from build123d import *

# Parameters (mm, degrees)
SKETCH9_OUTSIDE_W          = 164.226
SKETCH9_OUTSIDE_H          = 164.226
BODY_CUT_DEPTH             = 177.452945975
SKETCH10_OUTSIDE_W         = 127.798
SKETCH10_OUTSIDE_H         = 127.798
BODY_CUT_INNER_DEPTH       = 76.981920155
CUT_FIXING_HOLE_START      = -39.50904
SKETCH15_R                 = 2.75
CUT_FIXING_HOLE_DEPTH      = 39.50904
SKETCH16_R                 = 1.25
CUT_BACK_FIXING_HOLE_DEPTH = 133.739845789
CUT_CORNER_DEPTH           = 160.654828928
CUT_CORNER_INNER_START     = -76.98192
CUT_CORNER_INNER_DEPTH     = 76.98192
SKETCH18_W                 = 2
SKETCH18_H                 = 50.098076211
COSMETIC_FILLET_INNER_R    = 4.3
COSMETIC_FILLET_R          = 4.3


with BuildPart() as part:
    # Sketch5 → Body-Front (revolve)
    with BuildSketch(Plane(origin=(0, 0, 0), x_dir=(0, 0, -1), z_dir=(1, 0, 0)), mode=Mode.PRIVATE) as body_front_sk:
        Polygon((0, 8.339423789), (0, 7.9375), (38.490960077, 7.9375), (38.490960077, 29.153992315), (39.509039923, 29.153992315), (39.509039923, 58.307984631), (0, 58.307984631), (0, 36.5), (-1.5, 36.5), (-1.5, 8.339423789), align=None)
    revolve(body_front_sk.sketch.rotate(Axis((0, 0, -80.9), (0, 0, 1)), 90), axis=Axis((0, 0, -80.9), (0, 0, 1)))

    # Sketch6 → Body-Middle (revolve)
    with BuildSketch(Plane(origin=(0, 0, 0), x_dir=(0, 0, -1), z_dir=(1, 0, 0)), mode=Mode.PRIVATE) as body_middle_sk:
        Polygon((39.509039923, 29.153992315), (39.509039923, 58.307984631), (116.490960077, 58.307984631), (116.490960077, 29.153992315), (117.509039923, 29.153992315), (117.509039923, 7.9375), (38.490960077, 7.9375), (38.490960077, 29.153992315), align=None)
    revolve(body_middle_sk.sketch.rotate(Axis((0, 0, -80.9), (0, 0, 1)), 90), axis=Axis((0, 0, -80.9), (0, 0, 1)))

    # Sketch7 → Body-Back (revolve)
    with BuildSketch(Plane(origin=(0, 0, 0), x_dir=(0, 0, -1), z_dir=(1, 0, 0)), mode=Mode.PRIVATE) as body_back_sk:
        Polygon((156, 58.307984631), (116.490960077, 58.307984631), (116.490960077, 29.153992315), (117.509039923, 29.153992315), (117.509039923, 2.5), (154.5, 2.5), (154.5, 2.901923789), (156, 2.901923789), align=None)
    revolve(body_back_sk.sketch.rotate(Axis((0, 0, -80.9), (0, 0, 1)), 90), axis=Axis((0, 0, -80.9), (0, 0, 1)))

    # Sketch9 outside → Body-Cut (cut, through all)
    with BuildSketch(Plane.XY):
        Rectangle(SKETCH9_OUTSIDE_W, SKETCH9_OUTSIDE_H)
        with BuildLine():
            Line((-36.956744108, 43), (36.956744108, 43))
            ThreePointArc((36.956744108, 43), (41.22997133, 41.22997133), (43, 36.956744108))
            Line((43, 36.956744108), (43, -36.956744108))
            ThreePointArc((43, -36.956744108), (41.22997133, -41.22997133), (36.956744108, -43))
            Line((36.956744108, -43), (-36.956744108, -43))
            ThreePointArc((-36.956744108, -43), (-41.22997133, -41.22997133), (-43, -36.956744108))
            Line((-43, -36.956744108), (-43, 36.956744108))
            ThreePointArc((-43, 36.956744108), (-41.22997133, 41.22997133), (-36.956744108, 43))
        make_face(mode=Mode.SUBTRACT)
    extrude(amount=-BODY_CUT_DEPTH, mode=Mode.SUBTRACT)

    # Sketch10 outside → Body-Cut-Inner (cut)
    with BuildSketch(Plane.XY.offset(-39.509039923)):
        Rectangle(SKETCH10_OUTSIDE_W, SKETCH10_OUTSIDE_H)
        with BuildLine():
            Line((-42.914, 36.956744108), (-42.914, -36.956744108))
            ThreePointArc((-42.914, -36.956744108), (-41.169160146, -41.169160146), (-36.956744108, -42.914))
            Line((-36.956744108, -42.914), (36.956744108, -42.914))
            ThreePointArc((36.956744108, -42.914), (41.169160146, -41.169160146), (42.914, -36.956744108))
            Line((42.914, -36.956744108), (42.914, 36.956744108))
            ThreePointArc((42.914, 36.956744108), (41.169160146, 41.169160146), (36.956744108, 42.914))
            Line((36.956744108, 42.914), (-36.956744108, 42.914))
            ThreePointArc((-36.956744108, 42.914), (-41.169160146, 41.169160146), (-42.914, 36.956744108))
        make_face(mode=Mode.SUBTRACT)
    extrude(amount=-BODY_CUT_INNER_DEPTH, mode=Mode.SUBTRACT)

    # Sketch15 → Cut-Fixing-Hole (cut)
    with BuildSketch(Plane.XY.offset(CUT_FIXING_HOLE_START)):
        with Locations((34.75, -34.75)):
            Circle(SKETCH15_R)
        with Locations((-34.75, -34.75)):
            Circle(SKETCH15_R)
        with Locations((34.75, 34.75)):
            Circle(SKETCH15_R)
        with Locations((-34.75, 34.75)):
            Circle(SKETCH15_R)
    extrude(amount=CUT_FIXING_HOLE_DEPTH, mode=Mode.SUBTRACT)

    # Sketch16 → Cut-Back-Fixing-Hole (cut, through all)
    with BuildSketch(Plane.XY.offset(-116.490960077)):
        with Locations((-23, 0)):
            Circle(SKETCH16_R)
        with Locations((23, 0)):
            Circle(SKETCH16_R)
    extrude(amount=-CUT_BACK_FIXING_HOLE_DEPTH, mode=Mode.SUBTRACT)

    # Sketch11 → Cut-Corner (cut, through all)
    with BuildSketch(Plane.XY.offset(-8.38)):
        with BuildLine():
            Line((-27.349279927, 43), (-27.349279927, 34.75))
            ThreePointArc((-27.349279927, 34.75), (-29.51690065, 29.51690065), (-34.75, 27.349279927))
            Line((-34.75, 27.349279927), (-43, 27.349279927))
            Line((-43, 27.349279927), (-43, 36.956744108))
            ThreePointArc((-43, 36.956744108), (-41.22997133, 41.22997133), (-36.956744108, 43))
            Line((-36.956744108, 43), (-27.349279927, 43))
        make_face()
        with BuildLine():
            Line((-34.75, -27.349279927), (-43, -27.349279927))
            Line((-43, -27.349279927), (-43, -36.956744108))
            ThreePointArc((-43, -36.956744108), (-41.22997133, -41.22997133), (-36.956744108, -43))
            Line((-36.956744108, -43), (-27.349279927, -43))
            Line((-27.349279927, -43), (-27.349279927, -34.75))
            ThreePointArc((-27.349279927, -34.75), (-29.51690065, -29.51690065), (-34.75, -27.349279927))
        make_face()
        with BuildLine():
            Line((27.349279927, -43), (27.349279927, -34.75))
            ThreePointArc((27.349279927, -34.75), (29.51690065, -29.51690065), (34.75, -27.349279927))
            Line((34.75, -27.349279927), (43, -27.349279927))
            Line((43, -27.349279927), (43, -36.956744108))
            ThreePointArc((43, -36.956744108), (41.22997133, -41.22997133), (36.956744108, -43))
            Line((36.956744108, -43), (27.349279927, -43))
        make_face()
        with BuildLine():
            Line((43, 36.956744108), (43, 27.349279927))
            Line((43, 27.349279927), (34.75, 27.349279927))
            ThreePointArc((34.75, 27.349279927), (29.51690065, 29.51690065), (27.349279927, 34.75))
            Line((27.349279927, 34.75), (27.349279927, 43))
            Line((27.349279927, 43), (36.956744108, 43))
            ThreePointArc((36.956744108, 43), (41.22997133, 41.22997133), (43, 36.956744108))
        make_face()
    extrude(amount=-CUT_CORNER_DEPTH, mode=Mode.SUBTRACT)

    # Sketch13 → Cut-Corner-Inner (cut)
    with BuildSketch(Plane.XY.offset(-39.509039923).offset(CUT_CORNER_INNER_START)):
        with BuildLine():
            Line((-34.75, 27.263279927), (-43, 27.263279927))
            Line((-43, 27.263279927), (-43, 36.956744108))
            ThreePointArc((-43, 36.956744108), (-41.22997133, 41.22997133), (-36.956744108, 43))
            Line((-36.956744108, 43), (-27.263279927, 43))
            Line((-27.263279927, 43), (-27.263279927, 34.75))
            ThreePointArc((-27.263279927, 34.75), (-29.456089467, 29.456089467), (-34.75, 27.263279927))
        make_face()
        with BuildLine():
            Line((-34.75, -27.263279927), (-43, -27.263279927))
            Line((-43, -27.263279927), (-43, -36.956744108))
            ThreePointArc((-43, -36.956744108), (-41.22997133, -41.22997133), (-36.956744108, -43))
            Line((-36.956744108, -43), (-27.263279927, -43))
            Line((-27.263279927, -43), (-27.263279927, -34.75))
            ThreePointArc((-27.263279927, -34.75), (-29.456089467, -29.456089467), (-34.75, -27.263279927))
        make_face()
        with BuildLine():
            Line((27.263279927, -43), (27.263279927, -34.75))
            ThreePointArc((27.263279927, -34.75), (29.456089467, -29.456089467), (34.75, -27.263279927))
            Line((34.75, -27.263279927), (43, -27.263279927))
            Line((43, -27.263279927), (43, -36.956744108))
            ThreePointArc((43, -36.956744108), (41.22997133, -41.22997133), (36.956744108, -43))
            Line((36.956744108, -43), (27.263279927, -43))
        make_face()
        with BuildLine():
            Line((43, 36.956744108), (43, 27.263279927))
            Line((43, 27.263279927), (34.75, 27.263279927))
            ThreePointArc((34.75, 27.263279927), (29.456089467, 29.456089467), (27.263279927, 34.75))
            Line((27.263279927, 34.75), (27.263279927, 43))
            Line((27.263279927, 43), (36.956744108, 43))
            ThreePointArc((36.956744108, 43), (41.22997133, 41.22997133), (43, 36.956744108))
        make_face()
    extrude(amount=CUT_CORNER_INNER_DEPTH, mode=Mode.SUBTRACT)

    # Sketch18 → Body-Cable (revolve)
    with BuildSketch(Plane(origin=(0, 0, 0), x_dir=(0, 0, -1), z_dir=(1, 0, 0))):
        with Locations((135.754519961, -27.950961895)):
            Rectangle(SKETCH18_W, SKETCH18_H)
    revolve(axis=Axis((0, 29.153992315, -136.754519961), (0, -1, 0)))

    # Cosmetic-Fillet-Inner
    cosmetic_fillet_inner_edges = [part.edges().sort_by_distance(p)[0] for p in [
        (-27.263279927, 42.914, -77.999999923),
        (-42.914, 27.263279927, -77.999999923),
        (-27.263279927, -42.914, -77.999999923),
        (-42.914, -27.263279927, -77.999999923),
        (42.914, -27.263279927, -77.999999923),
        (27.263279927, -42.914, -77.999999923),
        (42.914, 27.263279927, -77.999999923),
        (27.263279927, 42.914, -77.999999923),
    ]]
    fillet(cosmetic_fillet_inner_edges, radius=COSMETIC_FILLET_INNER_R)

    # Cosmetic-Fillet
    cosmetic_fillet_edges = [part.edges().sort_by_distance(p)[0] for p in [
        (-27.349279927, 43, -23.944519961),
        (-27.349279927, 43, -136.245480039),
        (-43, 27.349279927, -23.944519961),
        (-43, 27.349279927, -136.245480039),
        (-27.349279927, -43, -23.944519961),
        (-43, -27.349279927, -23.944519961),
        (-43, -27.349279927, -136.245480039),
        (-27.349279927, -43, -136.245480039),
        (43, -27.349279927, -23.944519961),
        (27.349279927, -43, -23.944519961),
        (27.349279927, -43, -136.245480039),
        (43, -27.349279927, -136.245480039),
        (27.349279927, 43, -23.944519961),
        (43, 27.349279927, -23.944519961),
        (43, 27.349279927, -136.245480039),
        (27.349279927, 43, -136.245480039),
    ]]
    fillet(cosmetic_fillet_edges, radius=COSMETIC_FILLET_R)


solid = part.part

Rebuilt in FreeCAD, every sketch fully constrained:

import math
import FreeCAD as App
import Part
import Sketcher

V = App.Vector
Q = App.Units.Quantity


def edges_at(feature, points):
    """Names of the edges that pass closest to the given points."""
    edges = feature.Shape.Edges
    near = lambda p: min(range(len(edges)), key=lambda i: edges[i].distToShape(Part.Vertex(*p))[0])
    return sorted({f"Edge{near(p) + 1}" for p in points})

doc = App.newDocument("Part")
body = doc.addObject("PartDesign::Body", "Body")

sketch1 = body.newObject("Sketcher::SketchObject", "Sketch")
sketch1.AttachmentSupport = (doc.getObject("YZ_Plane"), [""])
sketch1.MapMode = "FlatFace"
sketch1.addGeometry([
    Part.LineSegment(V(8.339424, 0, 0), V(7.9375, 0, 0)),
    Part.LineSegment(V(7.9375, 0, 0), V(7.9375, -38.49096, 0)),
    Part.LineSegment(V(7.9375, -38.49096, 0), V(29.153992, -38.49096, 0)),
    Part.LineSegment(V(29.153992, -38.49096, 0), V(29.153992, -39.50904, 0)),
    Part.LineSegment(V(29.153992, -39.50904, 0), V(58.307985, -39.50904, 0)),
    Part.LineSegment(V(58.307985, -39.50904, 0), V(58.307985, 0, 0)),
    Part.LineSegment(V(58.307985, 0, 0), V(36.5, 0, 0)),
    Part.LineSegment(V(36.5, 0, 0), V(36.5, 1.5, 0)),
    Part.LineSegment(V(36.5, 1.5, 0), V(8.339424, 1.5, 0)),
    Part.LineSegment(V(8.339424, 1.5, 0), V(8.339424, 0, 0)),
], False)
sketch1.addConstraint([
    Sketcher.Constraint("Coincident", 0, 2, 1, 1),
    Sketcher.Constraint("Coincident", 1, 2, 2, 1),
    Sketcher.Constraint("Coincident", 2, 2, 3, 1),
    Sketcher.Constraint("Coincident", 3, 2, 4, 1),
    Sketcher.Constraint("Coincident", 4, 2, 5, 1),
    Sketcher.Constraint("Coincident", 5, 2, 6, 1),
    Sketcher.Constraint("Coincident", 6, 2, 7, 1),
    Sketcher.Constraint("Coincident", 7, 2, 8, 1),
    Sketcher.Constraint("Coincident", 8, 2, 9, 1),
    Sketcher.Constraint("Coincident", 9, 2, 0, 1),
    Sketcher.Constraint("Horizontal", 0),
    Sketcher.Constraint("Vertical", 1),
    Sketcher.Constraint("Horizontal", 2),
    Sketcher.Constraint("Vertical", 3),
    Sketcher.Constraint("Horizontal", 4),
    Sketcher.Constraint("Vertical", 5),
    Sketcher.Constraint("Horizontal", 6),
    Sketcher.Constraint("Vertical", 7),
    Sketcher.Constraint("Horizontal", 8),
    Sketcher.Constraint("Vertical", 9),
    Sketcher.Constraint("PointOnObject", 0, 2, -1),
    Sketcher.Constraint("PointOnObject", 5, 2, -1),
    Sketcher.Constraint("DistanceY", 7, 1, 7, 2, Q("1.5 mm")),
    Sketcher.Constraint("DistanceX", -1, 1, 6, 2, Q("36.5 mm")),
    Sketcher.Constraint("DistanceY", 1, 2, 1, 1, Q("38.49096 mm")),
    Sketcher.Constraint("DistanceY", 3, 2, 3, 1, Q("1.01808 mm")),
    Sketcher.Constraint("DistanceX", -1, 1, 0, 2, Q("7.9375 mm")),
    Sketcher.Constraint("DistanceX", 0, 2, 0, 1, Q("0.401924 mm")),
    Sketcher.Constraint("DistanceX", 2, 1, 2, 2, Q("21.216492 mm")),
    Sketcher.Constraint("DistanceX", 4, 1, 4, 2, Q("29.153992 mm")),
])
revolution = body.newObject("PartDesign::Revolution", "Revolution")
revolution.Profile = sketch1
revolution.ReferenceAxis = (sketch1, ["V_Axis"])
revolution.Angle = 360

sketch2 = body.newObject("Sketcher::SketchObject", "Sketch001")
sketch2.AttachmentSupport = (doc.getObject("YZ_Plane"), [""])
sketch2.MapMode = "FlatFace"
sketch2.addGeometry([
    Part.LineSegment(V(58.307985, -39.50904, 0), V(29.153992, -39.50904, 0)),
    Part.LineSegment(V(29.153992, -39.50904, 0), V(29.153992, -38.49096, 0)),
    Part.LineSegment(V(29.153992, -38.49096, 0), V(7.9375, -38.49096, 0)),
    Part.LineSegment(V(7.9375, -38.49096, 0), V(7.9375, -117.50904, 0)),
    Part.LineSegment(V(7.9375, -117.50904, 0), V(29.153992, -117.50904, 0)),
    Part.LineSegment(V(29.153992, -117.50904, 0), V(29.153992, -116.49096, 0)),
    Part.LineSegment(V(29.153992, -116.49096, 0), V(58.307985, -116.49096, 0)),
    Part.LineSegment(V(58.307985, -116.49096, 0), V(58.307985, -39.50904, 0)),
], False)
sketch2.addConstraint([
    Sketcher.Constraint("Coincident", 0, 2, 1, 1),
    Sketcher.Constraint("Coincident", 1, 2, 2, 1),
    Sketcher.Constraint("Coincident", 2, 2, 3, 1),
    Sketcher.Constraint("Coincident", 3, 2, 4, 1),
    Sketcher.Constraint("Coincident", 4, 2, 5, 1),
    Sketcher.Constraint("Coincident", 5, 2, 6, 1),
    Sketcher.Constraint("Coincident", 6, 2, 7, 1),
    Sketcher.Constraint("Coincident", 7, 2, 0, 1),
    Sketcher.Constraint("Horizontal", 0),
    Sketcher.Constraint("Vertical", 1),
    Sketcher.Constraint("Horizontal", 2),
    Sketcher.Constraint("Vertical", 3),
    Sketcher.Constraint("Horizontal", 4),
    Sketcher.Constraint("Vertical", 5),
    Sketcher.Constraint("Horizontal", 6),
    Sketcher.Constraint("Vertical", 7),
    Sketcher.Constraint("Vertical", 1, 2, 4, 2),
    Sketcher.Constraint("Equal", 1, 5),
    Sketcher.Constraint("DistanceY", 3, 2, 0, 2, Q("78 mm")),
    Sketcher.Constraint("DistanceY", 1, 1, 1, 2, Q("1.01808 mm")),
    Sketcher.Constraint("DistanceX", -1, 1, 2, 2, Q("7.9375 mm")),
    Sketcher.Constraint("DistanceX", 0, 2, 0, 1, Q("29.153992 mm")),
    Sketcher.Constraint("DistanceX", 2, 2, 2, 1, Q("21.216492 mm")),
    Sketcher.Constraint("DistanceY", 0, 2, -1, 1, Q("39.50904 mm")),
])
revolution2 = body.newObject("PartDesign::Revolution", "Revolution001")
revolution2.Profile = sketch2
revolution2.ReferenceAxis = (sketch2, ["V_Axis"])
revolution2.Angle = 360

sketch3 = body.newObject("Sketcher::SketchObject", "Sketch002")
sketch3.AttachmentSupport = (doc.getObject("YZ_Plane"), [""])
sketch3.MapMode = "FlatFace"
sketch3.addGeometry([
    Part.LineSegment(V(58.307985, -156, 0), V(58.307985, -116.49096, 0)),
    Part.LineSegment(V(58.307985, -116.49096, 0), V(29.153992, -116.49096, 0)),
    Part.LineSegment(V(29.153992, -116.49096, 0), V(29.153992, -117.50904, 0)),
    Part.LineSegment(V(29.153992, -117.50904, 0), V(2.5, -117.50904, 0)),
    Part.LineSegment(V(2.5, -117.50904, 0), V(2.5, -154.5, 0)),
    Part.LineSegment(V(2.5, -154.5, 0), V(2.901924, -154.5, 0)),
    Part.LineSegment(V(2.901924, -154.5, 0), V(2.901924, -156, 0)),
    Part.LineSegment(V(2.901924, -156, 0), V(58.307985, -156, 0)),
], False)
sketch3.addConstraint([
    Sketcher.Constraint("Coincident", 0, 2, 1, 1),
    Sketcher.Constraint("Coincident", 1, 2, 2, 1),
    Sketcher.Constraint("Coincident", 2, 2, 3, 1),
    Sketcher.Constraint("Coincident", 3, 2, 4, 1),
    Sketcher.Constraint("Coincident", 4, 2, 5, 1),
    Sketcher.Constraint("Coincident", 5, 2, 6, 1),
    Sketcher.Constraint("Coincident", 6, 2, 7, 1),
    Sketcher.Constraint("Coincident", 7, 2, 0, 1),
    Sketcher.Constraint("Vertical", 0),
    Sketcher.Constraint("Horizontal", 1),
    Sketcher.Constraint("Vertical", 2),
    Sketcher.Constraint("Horizontal", 3),
    Sketcher.Constraint("Vertical", 4),
    Sketcher.Constraint("Horizontal", 5),
    Sketcher.Constraint("Vertical", 6),
    Sketcher.Constraint("Horizontal", 7),
    Sketcher.Constraint("DistanceY", 6, 2, 6, 1, Q("1.5 mm")),
    Sketcher.Constraint("DistanceY", 6, 2, -1, 1, Q("156 mm")),
    Sketcher.Constraint("DistanceX", -1, 1, 3, 2, Q("2.5 mm")),
    Sketcher.Constraint("DistanceX", 7, 1, 7, 2, Q("55.406061 mm")),
    Sketcher.Constraint("DistanceY", 0, 1, 0, 2, Q("39.50904 mm")),
    Sketcher.Constraint("DistanceY", 2, 2, 2, 1, Q("1.01808 mm")),
    Sketcher.Constraint("DistanceX", 1, 2, 1, 1, Q("29.153992 mm")),
    Sketcher.Constraint("DistanceX", 3, 2, 3, 1, Q("26.653992 mm")),
])
revolution3 = body.newObject("PartDesign::Revolution", "Revolution002")
revolution3.Profile = sketch3
revolution3.ReferenceAxis = (sketch3, ["V_Axis"])
revolution3.Angle = 360

sketch4 = body.newObject("Sketcher::SketchObject", "Sketch003")
sketch4.AttachmentSupport = (doc.getObject("XY_Plane"), [""])
sketch4.MapMode = "FlatFace"
sketch4.addGeometry([
    Part.LineSegment(V(-82.113, 82.113, 0), V(-82.113, -82.113, 0)),
    Part.LineSegment(V(-82.113, -82.113, 0), V(82.113, -82.113, 0)),
    Part.LineSegment(V(82.113, -82.113, 0), V(82.113, 82.113, 0)),
    Part.LineSegment(V(82.113, 82.113, 0), V(-82.113, 82.113, 0)),
    Part.ArcOfCircle(Part.Circle(V(-36.956744, 36.956744, 0), V(0, 0, 1), 6.043256), math.radians(90), math.radians(180)),
    Part.LineSegment(V(-36.956744, 43, 0), V(36.956744, 43, 0)),
    Part.ArcOfCircle(Part.Circle(V(36.956744, 36.956744, 0), V(0, 0, 1), 6.043256), math.radians(0), math.radians(90)),
    Part.LineSegment(V(43, 36.956744, 0), V(43, -36.956744, 0)),
    Part.ArcOfCircle(Part.Circle(V(36.956744, -36.956744, 0), V(0, 0, 1), 6.043256), math.radians(-90), math.radians(0)),
    Part.LineSegment(V(36.956744, -43, 0), V(-36.956744, -43, 0)),
    Part.ArcOfCircle(Part.Circle(V(-36.956744, -36.956744, 0), V(0, 0, 1), 6.043256), math.radians(180), math.radians(270)),
    Part.LineSegment(V(-43, -36.956744, 0), V(-43, 36.956744, 0)),
], False)
sketch4.addConstraint([
    Sketcher.Constraint("Coincident", 0, 2, 1, 1),
    Sketcher.Constraint("Coincident", 1, 2, 2, 1),
    Sketcher.Constraint("Coincident", 2, 2, 3, 1),
    Sketcher.Constraint("Coincident", 3, 2, 0, 1),
    Sketcher.Constraint("Tangent", 4, 1, 5, 1),
    Sketcher.Constraint("Tangent", 5, 2, 6, 2),
    Sketcher.Constraint("Tangent", 6, 1, 7, 1),
    Sketcher.Constraint("Tangent", 7, 2, 8, 2),
    Sketcher.Constraint("Tangent", 8, 1, 9, 1),
    Sketcher.Constraint("Tangent", 9, 2, 10, 2),
    Sketcher.Constraint("Tangent", 10, 1, 11, 1),
    Sketcher.Constraint("Tangent", 11, 2, 4, 2),
    Sketcher.Constraint("Vertical", 0),
    Sketcher.Constraint("Horizontal", 1),
    Sketcher.Constraint("Vertical", 2),
    Sketcher.Constraint("Horizontal", 3),
    Sketcher.Constraint("Horizontal", 5),
    Sketcher.Constraint("Vertical", 7),
    Sketcher.Constraint("Horizontal", 9),
    Sketcher.Constraint("Vertical", 11),
    Sketcher.Constraint("Equal", 4, 6),
    Sketcher.Constraint("Equal", 6, 8),
    Sketcher.Constraint("Equal", 8, 10),
    Sketcher.Constraint("Symmetric", 4, 3, 8, 3, -1, 1),
    Sketcher.Constraint("Symmetric", 0, 2, 2, 2, -1, 1),
    Sketcher.Constraint("Equal", 3, 0),
    Sketcher.Constraint("Equal", 9, 7),
    Sketcher.Constraint("DistanceY", -1, 1, 4, 1, Q("43 mm")),
    Sketcher.Constraint("DistanceX", 1, 1, 1, 2, Q("164.226 mm")),
    Sketcher.Constraint("Radius", 4, Q("6.043256 mm")),
])
pocket1 = body.newObject("PartDesign::Pocket", "Pocket")
pocket1.Profile = sketch4
pocket1.Type = "ThroughAll"

sketch5 = body.newObject("Sketcher::SketchObject", "Sketch004")
sketch5.AttachmentSupport = (doc.getObject("XY_Plane"), [""])
sketch5.MapMode = "FlatFace"
sketch5.AttachmentOffset = App.Placement(V(0, 0, -39.50904), App.Rotation())
sketch5.addGeometry([
    Part.LineSegment(V(-63.899, 63.899, 0), V(-63.899, -63.899, 0)),
    Part.LineSegment(V(-63.899, -63.899, 0), V(63.899, -63.899, 0)),
    Part.LineSegment(V(63.899, -63.899, 0), V(63.899, 63.899, 0)),
    Part.LineSegment(V(63.899, 63.899, 0), V(-63.899, 63.899, 0)),
    Part.LineSegment(V(-42.914, -36.956744, 0), V(-42.914, 36.956744, 0)),
    Part.ArcOfCircle(Part.Circle(V(-36.956744, 36.956744, 0), V(0, 0, 1), 5.957256), math.radians(90), math.radians(180)),
    Part.LineSegment(V(-36.956744, 42.914, 0), V(36.956744, 42.914, 0)),
    Part.ArcOfCircle(Part.Circle(V(36.956744, 36.956744, 0), V(0, 0, 1), 5.957256), math.radians(0), math.radians(90)),
    Part.LineSegment(V(42.914, 36.956744, 0), V(42.914, -36.956744, 0)),
    Part.ArcOfCircle(Part.Circle(V(36.956744, -36.956744, 0), V(0, 0, 1), 5.957256), math.radians(-90), math.radians(0)),
    Part.LineSegment(V(36.956744, -42.914, 0), V(-36.956744, -42.914, 0)),
    Part.ArcOfCircle(Part.Circle(V(-36.956744, -36.956744, 0), V(0, 0, 1), 5.957256), math.radians(-180), math.radians(-90)),
], False)
sketch5.addConstraint([
    Sketcher.Constraint("Coincident", 0, 2, 1, 1),
    Sketcher.Constraint("Coincident", 1, 2, 2, 1),
    Sketcher.Constraint("Coincident", 2, 2, 3, 1),
    Sketcher.Constraint("Coincident", 3, 2, 0, 1),
    Sketcher.Constraint("Tangent", 4, 2, 5, 2),
    Sketcher.Constraint("Tangent", 5, 1, 6, 1),
    Sketcher.Constraint("Tangent", 6, 2, 7, 2),
    Sketcher.Constraint("Tangent", 7, 1, 8, 1),
    Sketcher.Constraint("Tangent", 8, 2, 9, 2),
    Sketcher.Constraint("Tangent", 9, 1, 10, 1),
    Sketcher.Constraint("Tangent", 10, 2, 11, 2),
    Sketcher.Constraint("Tangent", 11, 1, 4, 1),
    Sketcher.Constraint("Vertical", 0),
    Sketcher.Constraint("Horizontal", 1),
    Sketcher.Constraint("Vertical", 2),
    Sketcher.Constraint("Horizontal", 3),
    Sketcher.Constraint("Vertical", 4),
    Sketcher.Constraint("Horizontal", 6),
    Sketcher.Constraint("Vertical", 8),
    Sketcher.Constraint("Horizontal", 10),
    Sketcher.Constraint("Equal", 5, 7),
    Sketcher.Constraint("Equal", 7, 9),
    Sketcher.Constraint("Equal", 9, 11),
    Sketcher.Constraint("Symmetric", 5, 3, 9, 3, -1, 1),
    Sketcher.Constraint("Symmetric", 0, 2, 2, 2, -1, 1),
    Sketcher.Constraint("Equal", 3, 0),
    Sketcher.Constraint("Equal", 10, 4),
    Sketcher.Constraint("DistanceX", 1, 1, 1, 2, Q("127.798 mm")),
    Sketcher.Constraint("DistanceX", 4, 2, -1, 1, Q("42.914 mm")),
    Sketcher.Constraint("Radius", 5, Q("5.957256 mm")),
])
pocket2 = body.newObject("PartDesign::Pocket", "Pocket001")
pocket2.Profile = sketch5
pocket2.Length = 76.98192

sketch6 = body.newObject("Sketcher::SketchObject", "Sketch005")
sketch6.AttachmentSupport = (doc.getObject("XY_Plane"), [""])
sketch6.MapMode = "FlatFace"
sketch6.AttachmentOffset = App.Placement(V(0, 0, -39.50904), App.Rotation())
sketch6.addGeometry([
    Part.Circle(V(34.75, -34.75, 0), V(0, 0, 1), 2.75),
    Part.Circle(V(-34.75, -34.75, 0), V(0, 0, 1), 2.75),
    Part.Circle(V(34.75, 34.75, 0), V(0, 0, 1), 2.75),
    Part.Circle(V(-34.75, 34.75, 0), V(0, 0, 1), 2.75),
], False)
sketch6.addConstraint([
    Sketcher.Constraint("Equal", 0, 1),
    Sketcher.Constraint("Equal", 1, 2),
    Sketcher.Constraint("Equal", 2, 3),
    Sketcher.Constraint("Symmetric", 1, 3, 2, 3, -1, 1),
    Sketcher.Constraint("Symmetric", 0, 3, 3, 3, -1, 1),
    Sketcher.Constraint("Symmetric", 0, 3, 1, 3, -2),
    Sketcher.Constraint("Diameter", 0, Q("5.5 mm")),
    Sketcher.Constraint("DistanceX", 1, 3, 0, 3, Q("69.5 mm")),
    Sketcher.Constraint("DistanceY", 0, 3, 2, 3, Q("69.5 mm")),
])
pocket3 = body.newObject("PartDesign::Pocket", "Pocket002")
pocket3.Profile = sketch6
pocket3.Length = 39.50904
pocket3.Reversed = True

sketch7 = body.newObject("Sketcher::SketchObject", "Sketch006")
sketch7.AttachmentSupport = (doc.getObject("XY_Plane"), [""])
sketch7.MapMode = "FlatFace"
sketch7.AttachmentOffset = App.Placement(V(0, 0, -116.49096), App.Rotation())
sketch7.addGeometry([
    Part.Circle(V(-23, 0, 0), V(0, 0, 1), 1.25),
    Part.Circle(V(23, 0, 0), V(0, 0, 1), 1.25),
], False)
sketch7.addConstraint([
    Sketcher.Constraint("Equal", 0, 1),
    Sketcher.Constraint("Symmetric", 0, 3, 1, 3, -1, 1),
    Sketcher.Constraint("PointOnObject", 0, 3, -1),
    Sketcher.Constraint("Diameter", 0, Q("2.5 mm")),
    Sketcher.Constraint("DistanceX", 0, 3, -1, 1, Q("23 mm")),
])
pocket4 = body.newObject("PartDesign::Pocket", "Pocket003")
pocket4.Profile = sketch7
pocket4.Type = "ThroughAll"

sketch8 = body.newObject("Sketcher::SketchObject", "Sketch007")
sketch8.AttachmentSupport = (doc.getObject("XY_Plane"), [""])
sketch8.MapMode = "FlatFace"
sketch8.AttachmentOffset = App.Placement(V(0, 0, -8.38), App.Rotation())
sketch8.addGeometry([
    Part.LineSegment(V(-27.34928, 34.75, 0), V(-27.34928, 43, 0)),
    Part.LineSegment(V(-27.34928, 43, 0), V(-36.956744, 43, 0)),
    Part.ArcOfCircle(Part.Circle(V(-36.956744, 36.956744, 0), V(0, 0, 1), 6.043256), math.radians(90), math.radians(180)),
    Part.LineSegment(V(-43, 36.956744, 0), V(-43, 27.34928, 0)),
    Part.LineSegment(V(-43, 27.34928, 0), V(-34.75, 27.34928, 0)),
    Part.ArcOfCircle(Part.Circle(V(-34.75, 34.75, 0), V(0, 0, 1), 7.40072), math.radians(-90), math.radians(0)),
    Part.LineSegment(V(-34.75, -27.34928, 0), V(-43, -27.34928, 0)),
    Part.LineSegment(V(-43, -27.34928, 0), V(-43, -36.956744, 0)),
    Part.ArcOfCircle(Part.Circle(V(-36.956744, -36.956744, 0), V(0, 0, 1), 6.043256), math.radians(180), math.radians(270)),
    Part.LineSegment(V(-36.956744, -43, 0), V(-27.34928, -43, 0)),
    Part.LineSegment(V(-27.34928, -43, 0), V(-27.34928, -34.75, 0)),
    Part.ArcOfCircle(Part.Circle(V(-34.75, -34.75, 0), V(0, 0, 1), 7.40072), math.radians(0), math.radians(90)),
    Part.LineSegment(V(27.34928, -34.75, 0), V(27.34928, -43, 0)),
    Part.LineSegment(V(27.34928, -43, 0), V(36.956744, -43, 0)),
    Part.ArcOfCircle(Part.Circle(V(36.956744, -36.956744, 0), V(0, 0, 1), 6.043256), math.radians(-90), math.radians(0)),
    Part.LineSegment(V(43, -36.956744, 0), V(43, -27.34928, 0)),
    Part.LineSegment(V(43, -27.34928, 0), V(34.75, -27.34928, 0)),
    Part.ArcOfCircle(Part.Circle(V(34.75, -34.75, 0), V(0, 0, 1), 7.40072), math.radians(90), math.radians(180)),
    Part.LineSegment(V(43, 27.34928, 0), V(43, 36.956744, 0)),
    Part.ArcOfCircle(Part.Circle(V(36.956744, 36.956744, 0), V(0, 0, 1), 6.043256), math.radians(0), math.radians(90)),
    Part.LineSegment(V(36.956744, 43, 0), V(27.34928, 43, 0)),
    Part.LineSegment(V(27.34928, 43, 0), V(27.34928, 34.75, 0)),
    Part.ArcOfCircle(Part.Circle(V(34.75, 34.75, 0), V(0, 0, 1), 7.40072), math.radians(180), math.radians(270)),
    Part.LineSegment(V(34.75, 27.34928, 0), V(43, 27.34928, 0)),
], False)
sketch8.addConstraint([
    Sketcher.Constraint("Coincident", 0, 2, 1, 1),
    Sketcher.Constraint("Tangent", 1, 2, 2, 1),
    Sketcher.Constraint("Tangent", 2, 2, 3, 1),
    Sketcher.Constraint("Coincident", 3, 2, 4, 1),
    Sketcher.Constraint("Tangent", 4, 2, 5, 1),
    Sketcher.Constraint("Tangent", 5, 2, 0, 1),
    Sketcher.Constraint("Coincident", 6, 2, 7, 1),
    Sketcher.Constraint("Tangent", 7, 2, 8, 1),
    Sketcher.Constraint("Tangent", 8, 2, 9, 1),
    Sketcher.Constraint("Coincident", 9, 2, 10, 1),
    Sketcher.Constraint("Tangent", 10, 2, 11, 1),
    Sketcher.Constraint("Tangent", 11, 2, 6, 1),
    Sketcher.Constraint("Coincident", 12, 2, 13, 1),
    Sketcher.Constraint("Tangent", 13, 2, 14, 1),
    Sketcher.Constraint("Tangent", 14, 2, 15, 1),
    Sketcher.Constraint("Coincident", 15, 2, 16, 1),
    Sketcher.Constraint("Tangent", 16, 2, 17, 1),
    Sketcher.Constraint("Tangent", 17, 2, 12, 1),
    Sketcher.Constraint("Tangent", 18, 2, 19, 1),
    Sketcher.Constraint("Tangent", 19, 2, 20, 1),
    Sketcher.Constraint("Coincident", 20, 2, 21, 1),
    Sketcher.Constraint("Tangent", 21, 2, 22, 1),
    Sketcher.Constraint("Tangent", 22, 2, 23, 1),
    Sketcher.Constraint("Coincident", 23, 2, 18, 1),
    Sketcher.Constraint("Vertical", 0),
    Sketcher.Constraint("Horizontal", 1),
    Sketcher.Constraint("Vertical", 3),
    Sketcher.Constraint("Horizontal", 4),
    Sketcher.Constraint("Horizontal", 6),
    Sketcher.Constraint("Vertical", 7),
    Sketcher.Constraint("Horizontal", 9),
    Sketcher.Constraint("Vertical", 10),
    Sketcher.Constraint("Vertical", 12),
    Sketcher.Constraint("Horizontal", 13),
    Sketcher.Constraint("Vertical", 15),
    Sketcher.Constraint("Horizontal", 16),
    Sketcher.Constraint("Vertical", 18),
    Sketcher.Constraint("Horizontal", 20),
    Sketcher.Constraint("Vertical", 21),
    Sketcher.Constraint("Horizontal", 23),
    Sketcher.Constraint("Equal", 2, 8),
    Sketcher.Constraint("Equal", 5, 11),
    Sketcher.Constraint("Equal", 8, 14),
    Sketcher.Constraint("Equal", 11, 17),
    Sketcher.Constraint("Equal", 14, 19),
    Sketcher.Constraint("Equal", 17, 22),
    Sketcher.Constraint("Symmetric", 2, 3, 14, 3, -1, 1),
    Sketcher.Constraint("Symmetric", 5, 3, 17, 3, -1, 1),
    Sketcher.Constraint("Symmetric", 8, 3, 19, 3, -1, 1),
    Sketcher.Constraint("Symmetric", 11, 3, 22, 3, -1, 1),
    Sketcher.Constraint("Symmetric", 8, 3, 14, 3, -2),
    Sketcher.Constraint("Symmetric", 11, 3, 17, 3, -2),
    Sketcher.Constraint("Equal", 23, 0),
    Sketcher.Constraint("DistanceY", -1, 1, 0, 2, Q("43 mm")),
    Sketcher.Constraint("DistanceX", 2, 2, -1, 1, Q("43 mm")),
    Sketcher.Constraint("DistanceX", 4, 1, 4, 2, Q("8.25 mm")),
    Sketcher.Constraint("Radius", 5, Q("7.40072 mm")),
    Sketcher.Constraint("Radius", 2, Q("6.043256 mm")),
])
pocket5 = body.newObject("PartDesign::Pocket", "Pocket004")
pocket5.Profile = sketch8
pocket5.Type = "ThroughAll"

sketch9 = body.newObject("Sketcher::SketchObject", "Sketch008")
sketch9.AttachmentSupport = (doc.getObject("XY_Plane"), [""])
sketch9.MapMode = "FlatFace"
sketch9.AttachmentOffset = App.Placement(V(0, 0, -116.49096), App.Rotation())
sketch9.addGeometry([
    Part.LineSegment(V(-43, 27.26328, 0), V(-34.75, 27.26328, 0)),
    Part.ArcOfCircle(Part.Circle(V(-34.75, 34.75, 0), V(0, 0, 1), 7.48672), math.radians(-90), math.radians(0)),
    Part.LineSegment(V(-27.26328, 34.75, 0), V(-27.26328, 43, 0)),
    Part.LineSegment(V(-27.26328, 43, 0), V(-36.956744, 43, 0)),
    Part.ArcOfCircle(Part.Circle(V(-36.956744, 36.956744, 0), V(0, 0, 1), 6.043256), math.radians(90), math.radians(180)),
    Part.LineSegment(V(-43, 36.956744, 0), V(-43, 27.26328, 0)),
    Part.LineSegment(V(-34.75, -27.26328, 0), V(-43, -27.26328, 0)),
    Part.LineSegment(V(-43, -27.26328, 0), V(-43, -36.956744, 0)),
    Part.ArcOfCircle(Part.Circle(V(-36.956744, -36.956744, 0), V(0, 0, 1), 6.043256), math.radians(180), math.radians(270)),
    Part.LineSegment(V(-36.956744, -43, 0), V(-27.26328, -43, 0)),
    Part.LineSegment(V(-27.26328, -43, 0), V(-27.26328, -34.75, 0)),
    Part.ArcOfCircle(Part.Circle(V(-34.75, -34.75, 0), V(0, 0, 1), 7.48672), math.radians(0), math.radians(90)),
    Part.LineSegment(V(27.26328, -34.75, 0), V(27.26328, -43, 0)),
    Part.LineSegment(V(27.26328, -43, 0), V(36.956744, -43, 0)),
    Part.ArcOfCircle(Part.Circle(V(36.956744, -36.956744, 0), V(0, 0, 1), 6.043256), math.radians(-90), math.radians(0)),
    Part.LineSegment(V(43, -36.956744, 0), V(43, -27.26328, 0)),
    Part.LineSegment(V(43, -27.26328, 0), V(34.75, -27.26328, 0)),
    Part.ArcOfCircle(Part.Circle(V(34.75, -34.75, 0), V(0, 0, 1), 7.48672), math.radians(90), math.radians(180)),
    Part.LineSegment(V(43, 27.26328, 0), V(43, 36.956744, 0)),
    Part.ArcOfCircle(Part.Circle(V(36.956744, 36.956744, 0), V(0, 0, 1), 6.043256), math.radians(0), math.radians(90)),
    Part.LineSegment(V(36.956744, 43, 0), V(27.26328, 43, 0)),
    Part.LineSegment(V(27.26328, 43, 0), V(27.26328, 34.75, 0)),
    Part.ArcOfCircle(Part.Circle(V(34.75, 34.75, 0), V(0, 0, 1), 7.48672), math.radians(180), math.radians(270)),
    Part.LineSegment(V(34.75, 27.26328, 0), V(43, 27.26328, 0)),
], False)
sketch9.addConstraint([
    Sketcher.Constraint("Tangent", 0, 2, 1, 1),
    Sketcher.Constraint("Tangent", 1, 2, 2, 1),
    Sketcher.Constraint("Coincident", 2, 2, 3, 1),
    Sketcher.Constraint("Tangent", 3, 2, 4, 1),
    Sketcher.Constraint("Tangent", 4, 2, 5, 1),
    Sketcher.Constraint("Coincident", 5, 2, 0, 1),
    Sketcher.Constraint("Coincident", 6, 2, 7, 1),
    Sketcher.Constraint("Tangent", 7, 2, 8, 1),
    Sketcher.Constraint("Tangent", 8, 2, 9, 1),
    Sketcher.Constraint("Coincident", 9, 2, 10, 1),
    Sketcher.Constraint("Tangent", 10, 2, 11, 1),
    Sketcher.Constraint("Tangent", 11, 2, 6, 1),
    Sketcher.Constraint("Coincident", 12, 2, 13, 1),
    Sketcher.Constraint("Tangent", 13, 2, 14, 1),
    Sketcher.Constraint("Tangent", 14, 2, 15, 1),
    Sketcher.Constraint("Coincident", 15, 2, 16, 1),
    Sketcher.Constraint("Tangent", 16, 2, 17, 1),
    Sketcher.Constraint("Tangent", 17, 2, 12, 1),
    Sketcher.Constraint("Tangent", 18, 2, 19, 1),
    Sketcher.Constraint("Tangent", 19, 2, 20, 1),
    Sketcher.Constraint("Coincident", 20, 2, 21, 1),
    Sketcher.Constraint("Tangent", 21, 2, 22, 1),
    Sketcher.Constraint("Tangent", 22, 2, 23, 1),
    Sketcher.Constraint("Coincident", 23, 2, 18, 1),
    Sketcher.Constraint("Horizontal", 0),
    Sketcher.Constraint("Vertical", 2),
    Sketcher.Constraint("Horizontal", 3),
    Sketcher.Constraint("Vertical", 5),
    Sketcher.Constraint("Horizontal", 6),
    Sketcher.Constraint("Vertical", 7),
    Sketcher.Constraint("Horizontal", 9),
    Sketcher.Constraint("Vertical", 10),
    Sketcher.Constraint("Vertical", 12),
    Sketcher.Constraint("Horizontal", 13),
    Sketcher.Constraint("Vertical", 15),
    Sketcher.Constraint("Horizontal", 16),
    Sketcher.Constraint("Vertical", 18),
    Sketcher.Constraint("Horizontal", 20),
    Sketcher.Constraint("Vertical", 21),
    Sketcher.Constraint("Horizontal", 23),
    Sketcher.Constraint("Equal", 4, 8),
    Sketcher.Constraint("Equal", 1, 11),
    Sketcher.Constraint("Equal", 8, 14),
    Sketcher.Constraint("Equal", 11, 17),
    Sketcher.Constraint("Equal", 14, 19),
    Sketcher.Constraint("Equal", 17, 22),
    Sketcher.Constraint("Symmetric", 4, 3, 14, 3, -1, 1),
    Sketcher.Constraint("Symmetric", 1, 3, 17, 3, -1, 1),
    Sketcher.Constraint("Symmetric", 8, 3, 19, 3, -1, 1),
    Sketcher.Constraint("Symmetric", 11, 3, 22, 3, -1, 1),
    Sketcher.Constraint("Symmetric", 8, 3, 14, 3, -2),
    Sketcher.Constraint("Symmetric", 11, 3, 17, 3, -2),
    Sketcher.Constraint("Equal", 23, 2),
    Sketcher.Constraint("DistanceY", -1, 1, 2, 2, Q("43 mm")),
    Sketcher.Constraint("DistanceX", 4, 2, -1, 1, Q("43 mm")),
    Sketcher.Constraint("DistanceX", 0, 1, 0, 2, Q("8.25 mm")),
    Sketcher.Constraint("Radius", 1, Q("7.48672 mm")),
    Sketcher.Constraint("Radius", 4, Q("6.043256 mm")),
])
pocket6 = body.newObject("PartDesign::Pocket", "Pocket005")
pocket6.Profile = sketch9
pocket6.Length = 76.98192
pocket6.Reversed = True

sketch10 = body.newObject("Sketcher::SketchObject", "Sketch009")
sketch10.AttachmentSupport = (doc.getObject("YZ_Plane"), [""])
sketch10.MapMode = "FlatFace"
sketch10.addGeometry([
    Part.LineSegment(V(-2.901924, -134.75452, 0), V(-53, -134.75452, 0)),
    Part.LineSegment(V(-53, -134.75452, 0), V(-53, -136.75452, 0)),
    Part.LineSegment(V(-53, -136.75452, 0), V(-2.901924, -136.75452, 0)),
    Part.LineSegment(V(-2.901924, -136.75452, 0), V(-2.901924, -134.75452, 0)),
], False)
sketch10.addGeometry(Part.LineSegment(V(-2.901924, -136.75452, 0), V(-53, -136.75452, 0)), True)
sketch10.addConstraint([
    Sketcher.Constraint("Coincident", 0, 2, 1, 1),
    Sketcher.Constraint("Coincident", 1, 2, 2, 1),
    Sketcher.Constraint("Coincident", 2, 2, 3, 1),
    Sketcher.Constraint("Coincident", 3, 2, 0, 1),
    Sketcher.Constraint("Horizontal", 0),
    Sketcher.Constraint("Vertical", 1),
    Sketcher.Constraint("Horizontal", 2),
    Sketcher.Constraint("Vertical", 3),
    Sketcher.Constraint("Horizontal", 4),
    Sketcher.Constraint("Coincident", 4, 1, 2, 2),
    Sketcher.Constraint("Vertical", 0, 2, 4, 2),
    Sketcher.Constraint("DistanceY", 1, 2, 1, 1, Q("2 mm")),
    Sketcher.Constraint("DistanceX", 0, 2, -1, 1, Q("53 mm")),
    Sketcher.Constraint("DistanceX", 0, 2, 0, 1, Q("50.098076 mm")),
    Sketcher.Constraint("DistanceY", 0, 2, -1, 1, Q("134.75452 mm")),
])
revolution4 = body.newObject("PartDesign::Revolution", "Revolution003")
revolution4.Profile = sketch10
revolution4.ReferenceAxis = (sketch10, ["Axis0"])
revolution4.Angle = 360
doc.recompute()

fillet = body.newObject("PartDesign::Fillet", "Fillet")
fillet.Base = (revolution4, edges_at(revolution4, [
    (-27.263, 42.914, -78),
    (-42.914, 27.263, -78),
    (-27.263, -42.914, -78),
    (-42.914, -27.263, -78),
    (42.914, -27.263, -78),
    (27.263, -42.914, -78),
    (42.914, 27.263, -78),
    (27.263, 42.914, -78),
]))
fillet.Radius = 4.3
doc.recompute()

fillet2 = body.newObject("PartDesign::Fillet", "Fillet001")
fillet2.Base = (fillet, edges_at(fillet, [
    (-27.349, 43, -23.945),
    (-27.349, 43, -136.245),
    (-43, 27.349, -23.945),
    (-43, 27.349, -136.245),
    (-27.349, -43, -23.945),
    (-43, -27.349, -23.945),
    (-43, -27.349, -136.245),
    (-27.349, -43, -136.245),
    (43, -27.349, -23.945),
    (27.349, -43, -23.945),
    (27.349, -43, -136.245),
    (43, -27.349, -136.245),
    (27.349, 43, -23.945),
    (43, 27.349, -23.945),
    (43, 27.349, -136.245),
    (27.349, 43, -136.245),
]))
fillet2.Radius = 4.3

doc.recompute()
